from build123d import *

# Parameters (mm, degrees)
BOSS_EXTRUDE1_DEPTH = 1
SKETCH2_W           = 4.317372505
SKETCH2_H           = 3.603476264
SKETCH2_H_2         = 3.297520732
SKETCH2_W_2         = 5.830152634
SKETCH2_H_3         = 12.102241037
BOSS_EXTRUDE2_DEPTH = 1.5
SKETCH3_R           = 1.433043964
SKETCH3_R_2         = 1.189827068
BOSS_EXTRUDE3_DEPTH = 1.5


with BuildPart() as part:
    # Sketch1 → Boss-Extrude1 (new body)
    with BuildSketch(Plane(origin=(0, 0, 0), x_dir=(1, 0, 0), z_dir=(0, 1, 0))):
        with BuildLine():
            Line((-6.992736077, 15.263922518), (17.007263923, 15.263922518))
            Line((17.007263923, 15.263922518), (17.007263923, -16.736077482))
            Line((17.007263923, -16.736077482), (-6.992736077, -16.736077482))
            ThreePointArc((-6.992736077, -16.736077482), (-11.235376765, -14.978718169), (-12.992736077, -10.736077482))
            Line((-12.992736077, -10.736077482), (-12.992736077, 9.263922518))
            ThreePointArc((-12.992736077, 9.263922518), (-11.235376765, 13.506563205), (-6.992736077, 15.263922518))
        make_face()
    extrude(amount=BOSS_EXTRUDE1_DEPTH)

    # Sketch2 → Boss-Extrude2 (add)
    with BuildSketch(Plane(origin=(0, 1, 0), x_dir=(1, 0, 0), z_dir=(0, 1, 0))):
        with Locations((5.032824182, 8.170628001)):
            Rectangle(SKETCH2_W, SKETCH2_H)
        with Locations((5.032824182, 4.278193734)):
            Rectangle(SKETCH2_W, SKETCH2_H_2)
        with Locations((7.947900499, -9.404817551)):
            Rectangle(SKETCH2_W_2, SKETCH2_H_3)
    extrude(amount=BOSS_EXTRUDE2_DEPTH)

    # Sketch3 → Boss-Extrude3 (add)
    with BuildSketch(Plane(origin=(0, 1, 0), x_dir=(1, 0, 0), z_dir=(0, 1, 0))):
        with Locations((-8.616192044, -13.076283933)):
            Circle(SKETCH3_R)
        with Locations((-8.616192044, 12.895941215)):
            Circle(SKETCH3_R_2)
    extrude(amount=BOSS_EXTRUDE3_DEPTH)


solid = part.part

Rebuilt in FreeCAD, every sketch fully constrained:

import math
import FreeCAD as App
import Part
import Sketcher
from FreeCAD import Vector

doc = App.newDocument("Part")
body = doc.addObject("PartDesign::Body", "Body")

# Sketch on XZ plane
sketch1 = doc.addObject("Sketcher::SketchObject", "Sketch")
body.addObject(sketch1)
sketch1.AttachmentSupport = (doc.XZ_Plane, [""])
sketch1.MapMode = "FlatFace"
sketch1.addGeometry(Part.LineSegment(Vector(17, -15, 0), Vector(-7, -15, 0)), False)
sketch1.addGeometry(Part.ArcOfCircle(Part.Circle(Vector(-7, -9, 0), Vector(0, 0, 1), 6), math.radians(180), math.radians(270)), False)
sketch1.addGeometry(Part.LineSegment(Vector(-13, -9, 0), Vector(-13, 11, 0)), False)
sketch1.addGeometry(Part.ArcOfCircle(Part.Circle(Vector(-7, 11, 0), Vector(0, 0, 1), 6), math.radians(90), math.radians(180)), False)
sketch1.addGeometry(Part.LineSegment(Vector(-7, 17, 0), Vector(17, 17, 0)), False)
sketch1.addGeometry(Part.LineSegment(Vector(17, 17, 0), Vector(17, -15, 0)), False)
sketch1.addConstraint(Sketcher.Constraint("Tangent", 0, 2, 1, 2))
sketch1.addConstraint(Sketcher.Constraint("Tangent", 1, 1, 2, 1))
sketch1.addConstraint(Sketcher.Constraint("Tangent", 2, 2, 3, 2))
sketch1.addConstraint(Sketcher.Constraint("Tangent", 3, 1, 4, 1))
sketch1.addConstraint(Sketcher.Constraint("Coincident", 4, 2, 5, 1))
sketch1.addConstraint(Sketcher.Constraint("Coincident", 5, 2, 0, 1))
sketch1.addConstraint(Sketcher.Constraint("Horizontal", 0))
sketch1.addConstraint(Sketcher.Constraint("Vertical", 2))
sketch1.addConstraint(Sketcher.Constraint("Horizontal", 4))
sketch1.addConstraint(Sketcher.Constraint("Vertical", 5))
sketch1.addConstraint(Sketcher.Constraint("Equal", 1, 3))
sketch1.addConstraint(Sketcher.Constraint("Radius", 1, 6.0))
sketch1.addConstraint(Sketcher.Constraint("DistanceX", 0, 2, 0, 1, 24.0))
sketch1.addConstraint(Sketcher.Constraint("DistanceY", 2, 1, 2, 2, 20.0))
sketch1.addConstraint(Sketcher.Constraint("DistanceX", 1, 3, -1, 1, 6.992736))
sketch1.addConstraint(Sketcher.Constraint("DistanceY", 1, 3, -1, 1, 9.263923))
pad1 = doc.addObject("PartDesign::Pad", "Pad")
body.addObject(pad1)
pad1.Profile = sketch1
pad1.Length = 1
pad1.Reversed = True

# Sketch on XZ plane
sketch2 = doc.addObject("Sketcher::SketchObject", "Sketch001")
body.addObject(sketch2)
sketch2.AttachmentSupport = (doc.XZ_Plane, [""])
sketch2.MapMode = "FlatFace"
sketch2.AttachmentOffset = App.Placement(Vector(0, 0, -1), App.Rotation())
sketch2.addGeometry(Part.LineSegment(Vector(2.9, -10, 0), Vector(2.9, -6.4, 0)), False)
sketch2.addGeometry(Part.LineSegment(Vector(2.9, -6.4, 0), Vector(7.2, -6.4, 0)), False)
sketch2.addGeometry(Part.LineSegment(Vector(7.2, -6.4, 0), Vector(7.2, -10, 0)), False)
sketch2.addGeometry(Part.LineSegment(Vector(7.2, -10, 0), Vector(2.9, -10, 0)), False)
sketch2.addGeometry(Part.LineSegment(Vector(2.9, -5.9, 0), Vector(2.9, -2.6, 0)), False)
sketch2.addGeometry(Part.LineSegment(Vector(2.9, -2.6, 0), Vector(7.2, -2.6, 0)), False)
sketch2.addGeometry(Part.LineSegment(Vector(7.2, -2.6, 0), Vector(7.2, -5.9, 0)), False)
sketch2.addGeometry(Part.LineSegment(Vector(7.2, -5.9, 0), Vector(2.9, -5.9, 0)), False)
sketch2.addGeometry(Part.LineSegment(Vector(5, 3.4, 0), Vector(5, 15.5, 0)), False)
sketch2.addGeometry(Part.LineSegment(Vector(5, 15.5, 0), Vector(10.9, 15.5, 0)), False)
sketch2.addGeometry(Part.LineSegment(Vector(10.9, 15.5, 0), Vector(10.9, 3.4, 0)), False)
sketch2.addGeometry(Part.LineSegment(Vector(10.9, 3.4, 0), Vector(5, 3.4, 0)), False)
sketch2.addConstraint(Sketcher.Constraint("Coincident", 0, 2, 1, 1))
sketch2.addConstraint(Sketcher.Constraint("Coincident", 1, 2, 2, 1))
sketch2.addConstraint(Sketcher.Constraint("Coincident", 2, 2, 3, 1))
sketch2.addConstraint(Sketcher.Constraint("Coincident", 3, 2, 0, 1))
sketch2.addConstraint(Sketcher.Constraint("Coincident", 4, 2, 5, 1))
sketch2.addConstraint(Sketcher.Constraint("Coincident", 5, 2, 6, 1))
sketch2.addConstraint(Sketcher.Constraint("Coincident", 6, 2, 7, 1))
sketch2.addConstraint(Sketcher.Constraint("Coincident", 7, 2, 4, 1))
sketch2.addConstraint(Sketcher.Constraint("Coincident", 8, 2, 9, 1))
sketch2.addConstraint(Sketcher.Constraint("Coincident", 9, 2, 10, 1))
sketch2.addConstraint(Sketcher.Constraint("Coincident", 10, 2, 11, 1))
sketch2.addConstraint(Sketcher.Constraint("Coincident", 11, 2, 8, 1))
sketch2.addConstraint(Sketcher.Constraint("Vertical", 0))
sketch2.addConstraint(Sketcher.Constraint("Horizontal", 1))
sketch2.addConstraint(Sketcher.Constraint("Vertical", 2))
sketch2.addConstraint(Sketcher.Constraint("Horizontal", 3))
sketch2.addConstraint(Sketcher.Constraint("Vertical", 4))
sketch2.addConstraint(Sketcher.Constraint("Horizontal", 5))
sketch2.addConstraint(Sketcher.Constraint("Vertical", 6))
sketch2.addConstraint(Sketcher.Constraint("Horizontal", 7))
sketch2.addConstraint(Sketcher.Constraint("Vertical", 8))
sketch2.addConstraint(Sketcher.Constraint("Horizontal", 9))
sketch2.addConstraint(Sketcher.Constraint("Vertical", 10))
sketch2.addConstraint(Sketcher.Constraint("Horizontal", 11))
sketch2.addConstraint(Sketcher.Constraint("Vertical", 3, 2, 4, 2))
sketch2.addConstraint(Sketcher.Constraint("Vertical", 2, 2, 5, 2))
sketch2.addConstraint(Sketcher.Constraint("DistanceY", 4, 1, 4, 2, 3.297521))
sketch2.addConstraint(Sketcher.Constraint("DistanceY", 8, 1, 8, 2, 12.102241))
sketch2.addConstraint(Sketcher.Constraint("DistanceX", 1, 1, 1, 2, 4.317373))
sketch2.addConstraint(Sketcher.Constraint("DistanceX", 9, 1, 9, 2, 5.830153))
sketch2.addConstraint(Sketcher.Constraint("DistanceY", 0, 1, 0, 2, 3.603476))
sketch2.addConstraint(Sketcher.Constraint("DistanceY", 0, 2, -1, 1, 6.36889))
sketch2.addConstraint(Sketcher.Constraint("DistanceX", -1, 1, 1, 2, 7.19151))
sketch2.addConstraint(Sketcher.Constraint("DistanceY", -1, 1, 8, 2, 15.455938))
sketch2.addConstraint(Sketcher.Constraint("DistanceY", 5, 2, 8, 2, 18.085371))
sketch2.addConstraint(Sketcher.Constraint("DistanceX", 4, 2, 9, 2, 7.988839))
pad2 = doc.addObject("PartDesign::Pad", "Pad001")
body.addObject(pad2)
pad2.Profile = sketch2
pad2.Length = 1.5
pad2.Reversed = True

# Sketch on XZ plane
sketch3 = doc.addObject("Sketcher::SketchObject", "Sketch002")
body.addObject(sketch3)
sketch3.AttachmentSupport = (doc.XZ_Plane, [""])
sketch3.MapMode = "FlatFace"
sketch3.AttachmentOffset = App.Placement(Vector(0, 0, -1), App.Rotation())
sketch3.addGeometry(Part.Circle(Vector(-8.6, 13.1, 0), Vector(0, 0, 1), 1.4), False)
sketch3.addGeometry(Part.Circle(Vector(-8.6, -12.9, 0), Vector(0, 0, 1), 1.2), False)
sketch3.addConstraint(Sketcher.Constraint("Vertical", 0, 3, 1, 3))
sketch3.addConstraint(Sketcher.Constraint("Diameter", 0, 2.866088))
sketch3.addConstraint(Sketcher.Constraint("Diameter", 1, 2.379654))
sketch3.addConstraint(Sketcher.Constraint("DistanceY", 1, 3, -1, 1, 12.895941))
sketch3.addConstraint(Sketcher.Constraint("DistanceX", 0, 3, -1, 1, 8.616192))
sketch3.addConstraint(Sketcher.Constraint("DistanceY", -1, 1, 0, 3, 13.076284))
pad3 = doc.addObject("PartDesign::Pad", "Pad002")
body.addObject(pad3)
pad3.Profile = sketch3
pad3.Length = 1.5
pad3.Reversed = True

doc.recompute()
